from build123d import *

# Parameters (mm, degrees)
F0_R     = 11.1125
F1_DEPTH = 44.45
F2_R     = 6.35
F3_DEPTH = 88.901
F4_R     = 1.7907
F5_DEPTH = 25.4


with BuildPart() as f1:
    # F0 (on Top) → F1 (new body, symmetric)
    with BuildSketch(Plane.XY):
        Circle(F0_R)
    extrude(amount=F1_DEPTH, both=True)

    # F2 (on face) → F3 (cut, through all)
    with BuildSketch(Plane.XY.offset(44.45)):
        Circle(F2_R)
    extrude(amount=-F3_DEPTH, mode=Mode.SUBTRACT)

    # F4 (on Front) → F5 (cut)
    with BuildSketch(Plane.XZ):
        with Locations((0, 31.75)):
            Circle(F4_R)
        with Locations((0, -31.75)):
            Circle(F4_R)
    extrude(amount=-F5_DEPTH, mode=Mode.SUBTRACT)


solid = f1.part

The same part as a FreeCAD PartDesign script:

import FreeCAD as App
import Part
import Sketcher
Q = App.Units.Quantity

doc = App.newDocument("Part")
body = doc.addObject("PartDesign::Body", "Body")

# Sketch on XY plane
sketch1 = doc.addObject("Sketcher::SketchObject", "Sketch")
body.addObject(sketch1)
sketch1.AttachmentSupport = (doc.XY_Plane, [""])
sketch1.MapMode = "FlatFace"
sketch1.addGeometry(Part.Circle(App.Vector(0, 0, 0), App.Vector(0, 0, 1), 11), False)
sketch1.addConstraint([
    Sketcher.Constraint("Coincident", 0, 3, -1, 1),
    Sketcher.Constraint("Diameter", 0, Q("0.875 in")),
])
pad1 = doc.addObject("PartDesign::Pad", "Pad")
body.addObject(pad1)
pad1.Profile = sketch1
pad1.Length = Q("3.5 in")
pad1.Midplane = True

# Sketch on XY plane
sketch2 = doc.addObject("Sketcher::SketchObject", "Sketch001")
body.addObject(sketch2)
sketch2.AttachmentSupport = (doc.XY_Plane, [""])
sketch2.MapMode = "FlatFace"
sketch2.AttachmentOffset = App.Placement(App.Vector(0, 0, 1.75 * 25.4), App.Rotation())
sketch2.addGeometry(Part.Circle(App.Vector(0, 0, 0), App.Vector(0, 0, 1), 6), False)
sketch2.addConstraint([
    Sketcher.Constraint("Coincident", 0, 3, -1, 1),
    Sketcher.Constraint("Diameter", 0, Q("0.5 in")),
])
pocket1 = doc.addObject("PartDesign::Pocket", "Pocket")
body.addObject(pocket1)
pocket1.Profile = sketch2
pocket1.Type = "ThroughAll"

# Sketch on XZ plane
sketch3 = doc.addObject("Sketcher::SketchObject", "Sketch002")
body.addObject(sketch3)
sketch3.AttachmentSupport = (doc.XZ_Plane, [""])
sketch3.MapMode = "FlatFace"
sketch3.addGeometry([
    Part.Circle(App.Vector(0, 31.8, 0), App.Vector(0, 0, 1), 1.8),
    Part.Circle(App.Vector(0, -31.8, 0), App.Vector(0, 0, 1), 1.8),
], False)
sketch3.addConstraint([
    Sketcher.Constraint("Equal", 0, 1),
    Sketcher.Constraint("Symmetric", 0, 3, 1, 3, -1, 1),
    Sketcher.Constraint("PointOnObject", 0, 3, -2),
    Sketcher.Constraint("Diameter", 0, Q("0.141 in")),
    Sketcher.Constraint("DistanceY", 1, 3, 0, 3, Q("2.5 in")),
])
pocket2 = doc.addObject("PartDesign::Pocket", "Pocket001")
body.addObject(pocket2)
pocket2.Profile = sketch3
pocket2.Length = Q("1 in")

doc.recompute()
